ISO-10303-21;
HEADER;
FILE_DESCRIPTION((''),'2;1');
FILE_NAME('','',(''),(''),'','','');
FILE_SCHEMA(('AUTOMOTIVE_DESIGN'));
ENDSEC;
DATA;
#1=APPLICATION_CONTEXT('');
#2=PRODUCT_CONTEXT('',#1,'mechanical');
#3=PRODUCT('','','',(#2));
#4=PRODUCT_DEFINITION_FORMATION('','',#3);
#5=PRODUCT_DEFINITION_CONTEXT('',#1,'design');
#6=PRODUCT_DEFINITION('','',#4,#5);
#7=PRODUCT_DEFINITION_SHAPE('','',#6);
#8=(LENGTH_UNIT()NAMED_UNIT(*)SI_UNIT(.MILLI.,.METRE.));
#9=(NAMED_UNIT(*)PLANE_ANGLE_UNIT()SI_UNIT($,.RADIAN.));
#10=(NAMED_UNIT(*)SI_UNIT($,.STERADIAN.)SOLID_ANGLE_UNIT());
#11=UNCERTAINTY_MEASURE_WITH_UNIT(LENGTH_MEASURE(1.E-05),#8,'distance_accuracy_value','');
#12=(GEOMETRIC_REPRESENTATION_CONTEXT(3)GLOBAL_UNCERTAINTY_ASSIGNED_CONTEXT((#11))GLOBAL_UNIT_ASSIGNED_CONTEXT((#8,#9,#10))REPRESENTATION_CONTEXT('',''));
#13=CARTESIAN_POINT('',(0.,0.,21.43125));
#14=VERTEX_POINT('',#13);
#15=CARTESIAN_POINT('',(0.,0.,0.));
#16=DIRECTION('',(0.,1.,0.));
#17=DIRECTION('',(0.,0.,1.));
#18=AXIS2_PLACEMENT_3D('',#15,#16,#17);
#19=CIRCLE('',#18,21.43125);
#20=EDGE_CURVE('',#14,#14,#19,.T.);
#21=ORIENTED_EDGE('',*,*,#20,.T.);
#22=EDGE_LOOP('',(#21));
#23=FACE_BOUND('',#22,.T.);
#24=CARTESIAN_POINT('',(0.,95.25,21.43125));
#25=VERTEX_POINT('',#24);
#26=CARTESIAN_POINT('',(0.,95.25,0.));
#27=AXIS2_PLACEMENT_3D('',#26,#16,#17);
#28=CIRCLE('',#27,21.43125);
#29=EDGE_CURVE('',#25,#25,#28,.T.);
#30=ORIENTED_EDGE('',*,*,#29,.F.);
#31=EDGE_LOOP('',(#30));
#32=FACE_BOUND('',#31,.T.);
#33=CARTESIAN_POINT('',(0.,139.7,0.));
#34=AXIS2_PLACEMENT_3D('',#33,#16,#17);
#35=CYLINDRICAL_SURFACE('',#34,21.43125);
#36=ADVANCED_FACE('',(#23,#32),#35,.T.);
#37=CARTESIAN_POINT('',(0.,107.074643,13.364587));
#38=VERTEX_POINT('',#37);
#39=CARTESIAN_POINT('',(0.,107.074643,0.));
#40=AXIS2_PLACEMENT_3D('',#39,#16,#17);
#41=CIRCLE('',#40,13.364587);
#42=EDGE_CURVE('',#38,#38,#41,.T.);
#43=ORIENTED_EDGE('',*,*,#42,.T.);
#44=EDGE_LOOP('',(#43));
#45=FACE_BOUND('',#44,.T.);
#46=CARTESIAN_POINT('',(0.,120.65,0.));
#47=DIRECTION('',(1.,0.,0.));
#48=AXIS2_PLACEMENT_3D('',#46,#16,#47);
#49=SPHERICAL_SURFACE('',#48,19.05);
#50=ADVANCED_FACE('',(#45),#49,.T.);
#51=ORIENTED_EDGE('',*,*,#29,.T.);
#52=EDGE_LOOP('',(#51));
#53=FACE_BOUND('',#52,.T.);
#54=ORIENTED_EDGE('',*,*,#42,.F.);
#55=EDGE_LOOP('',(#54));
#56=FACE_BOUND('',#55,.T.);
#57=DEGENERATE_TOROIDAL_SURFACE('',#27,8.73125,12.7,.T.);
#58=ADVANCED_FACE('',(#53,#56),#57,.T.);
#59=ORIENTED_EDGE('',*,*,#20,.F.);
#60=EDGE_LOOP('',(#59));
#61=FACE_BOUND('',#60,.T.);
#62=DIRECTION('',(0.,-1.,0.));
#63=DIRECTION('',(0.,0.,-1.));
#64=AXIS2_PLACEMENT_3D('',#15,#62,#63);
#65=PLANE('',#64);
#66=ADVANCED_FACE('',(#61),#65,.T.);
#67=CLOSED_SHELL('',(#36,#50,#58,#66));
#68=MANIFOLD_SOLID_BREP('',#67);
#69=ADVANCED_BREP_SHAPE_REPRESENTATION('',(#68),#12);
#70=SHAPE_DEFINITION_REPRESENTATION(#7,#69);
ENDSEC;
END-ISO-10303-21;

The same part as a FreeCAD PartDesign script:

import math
import FreeCAD as App
import Part
import Sketcher
from FreeCAD import Vector
Q = App.Units.Quantity

doc = App.newDocument("Part")
body = doc.addObject("PartDesign::Body", "Body")

sketch1 = body.newObject("Sketcher::SketchObject", "Sketch")
sketch1.AttachmentSupport = (doc.getObject("XY_Plane"), [""])
sketch1.MapMode = "FlatFace"
sketch1.addGeometry([
    Part.LineSegment(Vector(-21, 0, 0), Vector(0, 0, 0)),
    Part.LineSegment(Vector(0, 0, 0), Vector(0, 140, 0)),
    Part.ArcOfCircle(Part.Circle(Vector(0, 121, 0), Vector(0, 0, 1), 19), math.radians(90), math.radians(225)),
    Part.ArcOfCircle(Part.Circle(Vector(-9, 95, 0), Vector(0, 0, 1), 13), math.radians(111), math.radians(180)),
    Part.LineSegment(Vector(-21, 95, 0), Vector(-21, 0, 0)),
], False)
sketch1.addConstraint([
    Sketcher.Constraint("Coincident", 0, 2, 1, 1),
    Sketcher.Constraint("Coincident", 1, 2, 2, 1),
    Sketcher.Constraint("Coincident", 2, 2, 3, 1),
    Sketcher.Constraint("Tangent", 3, 2, 4, 1),
    Sketcher.Constraint("Coincident", 4, 2, 0, 1),
    Sketcher.Constraint("Horizontal", 0),
    Sketcher.Constraint("Vertical", 1),
    Sketcher.Constraint("Vertical", 4),
    Sketcher.Constraint("Coincident", 0, 2, -1, 1),
    Sketcher.Constraint("PointOnObject", 2, 3, -2),
    Sketcher.Constraint("Radius", 3, Q("0.5 in")),
    Sketcher.Constraint("Radius", 2, Q("0.75 in")),
    Sketcher.Constraint("DistanceY", 1, 1, 1, 2, Q("5.5 in")),
    Sketcher.Constraint("DistanceY", 3, 3, 2, 3, Q("1 in")),
    Sketcher.Constraint("DistanceX", 0, 1, 0, 2, Q("0.84375 in")),
])
revolution = body.newObject("PartDesign::Revolution", "Revolution")
revolution.Profile = sketch1
revolution.ReferenceAxis = (sketch1, ["V_Axis"])
revolution.Angle = 360

doc.recompute()
